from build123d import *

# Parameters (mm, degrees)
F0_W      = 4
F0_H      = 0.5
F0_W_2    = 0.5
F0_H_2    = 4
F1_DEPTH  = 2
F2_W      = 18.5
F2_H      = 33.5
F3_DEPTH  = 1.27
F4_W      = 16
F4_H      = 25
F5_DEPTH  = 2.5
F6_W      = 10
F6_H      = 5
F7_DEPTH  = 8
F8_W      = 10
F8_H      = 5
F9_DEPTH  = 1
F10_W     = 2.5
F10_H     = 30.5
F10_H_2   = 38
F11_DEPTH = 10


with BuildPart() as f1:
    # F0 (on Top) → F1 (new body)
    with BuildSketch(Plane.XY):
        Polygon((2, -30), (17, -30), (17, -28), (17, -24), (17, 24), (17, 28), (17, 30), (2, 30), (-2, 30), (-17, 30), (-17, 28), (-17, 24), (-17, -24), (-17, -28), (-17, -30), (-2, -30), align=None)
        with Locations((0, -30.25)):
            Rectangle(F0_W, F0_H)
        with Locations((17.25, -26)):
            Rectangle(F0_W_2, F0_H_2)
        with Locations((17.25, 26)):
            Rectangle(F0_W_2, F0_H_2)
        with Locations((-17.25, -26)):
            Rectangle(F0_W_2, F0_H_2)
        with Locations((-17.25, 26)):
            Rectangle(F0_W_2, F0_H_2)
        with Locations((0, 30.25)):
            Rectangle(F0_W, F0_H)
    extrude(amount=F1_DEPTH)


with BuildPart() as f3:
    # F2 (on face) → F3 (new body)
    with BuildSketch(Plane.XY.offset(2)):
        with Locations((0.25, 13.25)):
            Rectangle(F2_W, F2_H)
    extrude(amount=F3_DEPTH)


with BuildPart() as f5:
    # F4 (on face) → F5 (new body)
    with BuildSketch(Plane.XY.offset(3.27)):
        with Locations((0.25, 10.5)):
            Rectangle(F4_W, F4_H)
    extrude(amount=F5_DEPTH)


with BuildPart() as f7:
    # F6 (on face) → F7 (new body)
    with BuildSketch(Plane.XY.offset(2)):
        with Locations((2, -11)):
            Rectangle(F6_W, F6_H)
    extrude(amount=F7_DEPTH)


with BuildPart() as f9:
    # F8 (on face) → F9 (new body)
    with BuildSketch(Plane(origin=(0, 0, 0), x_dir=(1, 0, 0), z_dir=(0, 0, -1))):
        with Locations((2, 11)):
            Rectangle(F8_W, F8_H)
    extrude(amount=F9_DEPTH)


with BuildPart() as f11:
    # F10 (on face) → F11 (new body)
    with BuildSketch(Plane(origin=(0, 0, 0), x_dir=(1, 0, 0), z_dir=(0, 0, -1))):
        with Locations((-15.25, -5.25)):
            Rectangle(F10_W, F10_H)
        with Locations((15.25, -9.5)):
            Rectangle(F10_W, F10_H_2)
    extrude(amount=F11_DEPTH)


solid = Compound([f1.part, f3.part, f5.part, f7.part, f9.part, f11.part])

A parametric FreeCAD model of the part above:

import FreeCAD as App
import Part
import Sketcher

V = App.Vector


def add_polygon(sketch, points):
    """Adds a closed chain of lines whose ends are joined by coincident constraints."""
    first, n = sketch.GeometryCount, len(points)
    for a, b in zip(points, points[1:] + points[:1]):
        sketch.addGeometry(Part.LineSegment(App.Vector(*a, 0), App.Vector(*b, 0)), False)
    for i in range(n):
        sketch.addConstraint(Sketcher.Constraint("Coincident", first + i, 2, first + (i + 1) % n, 1))

doc = App.newDocument("Part")
body = doc.addObject("PartDesign::Body", "Body")

# Sketch on XY plane
sketch1 = doc.addObject("Sketcher::SketchObject", "Sketch")
body.addObject(sketch1)
sketch1.AttachmentSupport = (doc.XY_Plane, [""])
sketch1.MapMode = "FlatFace"
add_polygon(sketch1, [(17, -30), (17, -28), (17.5, -28), (17.5, -24), (17, -24), (17, 24), (17.5, 24), (17.5, 28), (17, 28), (17, 30), (2, 30), (2, 30.5), (-2, 30.5), (-2, 30), (-17, 30), (-17, 28), (-17.5, 28), (-17.5, 24), (-17, 24), (-17, -24), (-17.5, -24), (-17.5, -28), (-17, -28), (-17, -30), (-2, -30), (-2, -30.5), (2, -30.5), (2, -30)])  # lines 0-27
sketch1.addConstraint([
    Sketcher.Constraint("Vertical", 0),
    Sketcher.Constraint("Horizontal", 1),
    Sketcher.Constraint("Vertical", 2),
    Sketcher.Constraint("Horizontal", 3),
    Sketcher.Constraint("Vertical", 4),
    Sketcher.Constraint("Horizontal", 5),
    Sketcher.Constraint("Vertical", 6),
    Sketcher.Constraint("Horizontal", 7),
    Sketcher.Constraint("Vertical", 8),
    Sketcher.Constraint("Horizontal", 9),
    Sketcher.Constraint("Vertical", 10),
    Sketcher.Constraint("Horizontal", 11),
    Sketcher.Constraint("Vertical", 12),
    Sketcher.Constraint("Horizontal", 13),
    Sketcher.Constraint("Vertical", 14),
    Sketcher.Constraint("Horizontal", 15),
    Sketcher.Constraint("Vertical", 16),
    Sketcher.Constraint("Horizontal", 17),
    Sketcher.Constraint("Vertical", 18),
    Sketcher.Constraint("Horizontal", 19),
    Sketcher.Constraint("Vertical", 20),
    Sketcher.Constraint("Horizontal", 21),
    Sketcher.Constraint("Vertical", 22),
    Sketcher.Constraint("Horizontal", 23),
    Sketcher.Constraint("Vertical", 24),
    Sketcher.Constraint("Horizontal", 25),
    Sketcher.Constraint("Vertical", 26),
    Sketcher.Constraint("Horizontal", 27),
    Sketcher.Constraint("Symmetric", 0, 2, 14, 2, -1, 1),
    Sketcher.Constraint("Symmetric", 2, 2, 16, 2, -1, 1),
    Sketcher.Constraint("Symmetric", 4, 2, 18, 2, -1, 1),
    Sketcher.Constraint("Symmetric", 6, 2, 20, 2, -1, 1),
    Sketcher.Constraint("Symmetric", 8, 2, 22, 2, -1, 1),
    Sketcher.Constraint("Symmetric", 10, 2, 24, 2, -1, 1),
    Sketcher.Constraint("Symmetric", 12, 2, 26, 2, -1, 1),
    Sketcher.Constraint("Symmetric", 9, 2, 12, 2, -2),
    Sketcher.Constraint("Symmetric", 7, 2, 14, 2, -2),
    Sketcher.Constraint("Symmetric", 5, 2, 16, 2, -2),
    Sketcher.Constraint("Vertical", 0, 2, 3, 2),
    Sketcher.Constraint("Equal", 25, 2),
    Sketcher.Constraint("Equal", 21, 10),
    Sketcher.Constraint("DistanceX", 9, 2, 9, 1, 15.0),
    Sketcher.Constraint("DistanceX", 11, 2, 11, 1, 4.0),
    Sketcher.Constraint("DistanceY", 0, 1, 0, 2, 2.0),
    Sketcher.Constraint("DistanceY", 4, 1, 4, 2, 48.0),
    Sketcher.Constraint("DistanceX", 1, 1, 1, 2, 0.5),
])
pad1 = doc.addObject("PartDesign::Pad", "Pad")
body.addObject(pad1)
pad1.Profile = sketch1
pad1.Length = 2
body2 = doc.addObject("PartDesign::Body", "Body001")

# Sketch on XY plane
sketch2 = doc.addObject("Sketcher::SketchObject", "Sketch001")
body2.addObject(sketch2)
sketch2.AttachmentSupport = (doc.getObject("XY_Plane001"), [""])
sketch2.MapMode = "FlatFace"
sketch2.AttachmentOffset = App.Placement(V(0, 0, 2), App.Rotation())
add_polygon(sketch2, [(-9, 30), (-9, -4), (10, -4), (10, 30)])  # lines 0-3
sketch2.addConstraint([
    Sketcher.Constraint("Vertical", 0),
    Sketcher.Constraint("Horizontal", 1),
    Sketcher.Constraint("Vertical", 2),
    Sketcher.Constraint("Horizontal", 3),
    Sketcher.Constraint("DistanceX", 1, 1, 1, 2, 18.5),
    Sketcher.Constraint("DistanceY", 0, 2, 0, 1, 33.5),
    Sketcher.Constraint("DistanceX", 0, 2, -1, 1, 9.0),
    Sketcher.Constraint("DistanceY", -1, 1, 2, 2, 30.0),
])
pad2 = doc.addObject("PartDesign::Pad", "Pad001")
body2.addObject(pad2)
pad2.Profile = sketch2
pad2.Length = 1.27
body3 = doc.addObject("PartDesign::Body", "Body002")

# Sketch on XY plane
sketch3 = doc.addObject("Sketcher::SketchObject", "Sketch002")
body3.addObject(sketch3)
sketch3.AttachmentSupport = (doc.getObject("XY_Plane002"), [""])
sketch3.MapMode = "FlatFace"
sketch3.AttachmentOffset = App.Placement(V(0, 0, 3.27), App.Rotation())
add_polygon(sketch3, [(-8, 23), (-8, -2), (8, -2), (8, 23)])  # lines 0-3
sketch3.addConstraint([
    Sketcher.Constraint("Vertical", 0),
    Sketcher.Constraint("Horizontal", 1),
    Sketcher.Constraint("Vertical", 2),
    Sketcher.Constraint("Horizontal", 3),
    Sketcher.Constraint("DistanceX", 1, 1, 1, 2, 16.0),
    Sketcher.Constraint("DistanceY", 0, 2, 0, 1, 25.0),
    Sketcher.Constraint("DistanceY", 0, 2, -1, 1, 2.0),
    Sketcher.Constraint("DistanceX", 0, 2, -1, 1, 7.75),
])
pad3 = doc.addObject("PartDesign::Pad", "Pad002")
body3.addObject(pad3)
pad3.Profile = sketch3
pad3.Length = 2.5
body4 = doc.addObject("PartDesign::Body", "Body003")

# Sketch on XY plane
sketch4 = doc.addObject("Sketcher::SketchObject", "Sketch003")
body4.addObject(sketch4)
sketch4.AttachmentSupport = (doc.getObject("XY_Plane003"), [""])
sketch4.MapMode = "FlatFace"
sketch4.AttachmentOffset = App.Placement(V(0, 0, 2), App.Rotation())
add_polygon(sketch4, [(-3, -8), (-3, -14), (7, -14), (7, -8)])  # lines 0-3
sketch4.addConstraint([
    Sketcher.Constraint("Vertical", 0),
    Sketcher.Constraint("Horizontal", 1),
    Sketcher.Constraint("Vertical", 2),
    Sketcher.Constraint("Horizontal", 3),
    Sketcher.Constraint("DistanceX", 1, 1, 1, 2, 10.0),
    Sketcher.Constraint("DistanceY", 0, 2, 0, 1, 5.0),
    Sketcher.Constraint("DistanceX", 0, 2, -1, 1, 3.0),
    Sketcher.Constraint("DistanceY", 0, 2, -1, 1, 13.5),
])
pad4 = doc.addObject("PartDesign::Pad", "Pad003")
body4.addObject(pad4)
pad4.Profile = sketch4
pad4.Length = 8
body5 = doc.addObject("PartDesign::Body", "Body004")

# Sketch on XY plane
sketch5 = doc.addObject("Sketcher::SketchObject", "Sketch004")
body5.addObject(sketch5)
sketch5.AttachmentSupport = (doc.getObject("XY_Plane004"), [""])
sketch5.MapMode = "FlatFace"
add_polygon(sketch5, [(-3, -14), (-3, -8), (7, -8), (7, -14)])  # lines 0-3
sketch5.addConstraint([
    Sketcher.Constraint("Vertical", 0),
    Sketcher.Constraint("Horizontal", 1),
    Sketcher.Constraint("Vertical", 2),
    Sketcher.Constraint("Horizontal", 3),
    Sketcher.Constraint("DistanceX", 1, 1, 1, 2, 10.0),
    Sketcher.Constraint("DistanceY", 0, 1, 0, 2, 5.0),
    Sketcher.Constraint("DistanceX", 0, 2, -1, 1, 3.0),
    Sketcher.Constraint("DistanceY", 0, 2, -1, 1, 8.5),
])
pad5 = doc.addObject("PartDesign::Pad", "Pad004")
body5.addObject(pad5)
pad5.Profile = sketch5
pad5.Length = 1
pad5.Reversed = True
body6 = doc.addObject("PartDesign::Body", "Body005")
body6.AllowCompound = True

# Sketch on XY plane
sketch6 = doc.addObject("Sketcher::SketchObject", "Sketch005")
body6.addObject(sketch6)
sketch6.AttachmentSupport = (doc.getObject("XY_Plane005"), [""])
sketch6.MapMode = "FlatFace"
add_polygon(sketch6, [(-16.5, -10), (-16.5, 20.5), (-14, 20.5), (-14, -10)])  # lines 0-3
add_polygon(sketch6, [(14, -9.5), (14, 28.5), (16.5, 28.5), (16.5, -9.5)])  # lines 4-7
sketch6.addConstraint([
    Sketcher.Constraint("Vertical", 0),
    Sketcher.Constraint("Horizontal", 1),
    Sketcher.Constraint("Vertical", 2),
    Sketcher.Constraint("Horizontal", 3),
    Sketcher.Constraint("Vertical", 4),
    Sketcher.Constraint("Horizontal", 5),
    Sketcher.Constraint("Vertical", 6),
    Sketcher.Constraint("Horizontal", 7),
    Sketcher.Constraint("Equal", 3, 5),
    Sketcher.Constraint("DistanceY", 4, 1, 4, 2, 38.0),
    Sketcher.Constraint("DistanceX", 1, 1, 1, 2, 2.5),
    Sketcher.Constraint("DistanceY", 0, 1, 0, 2, 30.5),
    Sketcher.Constraint("DistanceX", 1, 2, -1, 1, 14.0),
    Sketcher.Constraint("DistanceY", 2, 2, -1, 1, 10.0),
    Sketcher.Constraint("DistanceX", -1, 1, 4, 2, 14.0),
    Sketcher.Constraint("DistanceY", 1, 2, 4, 2, 8.0),
])
pad6 = doc.addObject("PartDesign::Pad", "Pad005")
body6.addObject(pad6)
pad6.Profile = sketch6
pad6.Length = 10
pad6.Reversed = True

doc.recompute()
